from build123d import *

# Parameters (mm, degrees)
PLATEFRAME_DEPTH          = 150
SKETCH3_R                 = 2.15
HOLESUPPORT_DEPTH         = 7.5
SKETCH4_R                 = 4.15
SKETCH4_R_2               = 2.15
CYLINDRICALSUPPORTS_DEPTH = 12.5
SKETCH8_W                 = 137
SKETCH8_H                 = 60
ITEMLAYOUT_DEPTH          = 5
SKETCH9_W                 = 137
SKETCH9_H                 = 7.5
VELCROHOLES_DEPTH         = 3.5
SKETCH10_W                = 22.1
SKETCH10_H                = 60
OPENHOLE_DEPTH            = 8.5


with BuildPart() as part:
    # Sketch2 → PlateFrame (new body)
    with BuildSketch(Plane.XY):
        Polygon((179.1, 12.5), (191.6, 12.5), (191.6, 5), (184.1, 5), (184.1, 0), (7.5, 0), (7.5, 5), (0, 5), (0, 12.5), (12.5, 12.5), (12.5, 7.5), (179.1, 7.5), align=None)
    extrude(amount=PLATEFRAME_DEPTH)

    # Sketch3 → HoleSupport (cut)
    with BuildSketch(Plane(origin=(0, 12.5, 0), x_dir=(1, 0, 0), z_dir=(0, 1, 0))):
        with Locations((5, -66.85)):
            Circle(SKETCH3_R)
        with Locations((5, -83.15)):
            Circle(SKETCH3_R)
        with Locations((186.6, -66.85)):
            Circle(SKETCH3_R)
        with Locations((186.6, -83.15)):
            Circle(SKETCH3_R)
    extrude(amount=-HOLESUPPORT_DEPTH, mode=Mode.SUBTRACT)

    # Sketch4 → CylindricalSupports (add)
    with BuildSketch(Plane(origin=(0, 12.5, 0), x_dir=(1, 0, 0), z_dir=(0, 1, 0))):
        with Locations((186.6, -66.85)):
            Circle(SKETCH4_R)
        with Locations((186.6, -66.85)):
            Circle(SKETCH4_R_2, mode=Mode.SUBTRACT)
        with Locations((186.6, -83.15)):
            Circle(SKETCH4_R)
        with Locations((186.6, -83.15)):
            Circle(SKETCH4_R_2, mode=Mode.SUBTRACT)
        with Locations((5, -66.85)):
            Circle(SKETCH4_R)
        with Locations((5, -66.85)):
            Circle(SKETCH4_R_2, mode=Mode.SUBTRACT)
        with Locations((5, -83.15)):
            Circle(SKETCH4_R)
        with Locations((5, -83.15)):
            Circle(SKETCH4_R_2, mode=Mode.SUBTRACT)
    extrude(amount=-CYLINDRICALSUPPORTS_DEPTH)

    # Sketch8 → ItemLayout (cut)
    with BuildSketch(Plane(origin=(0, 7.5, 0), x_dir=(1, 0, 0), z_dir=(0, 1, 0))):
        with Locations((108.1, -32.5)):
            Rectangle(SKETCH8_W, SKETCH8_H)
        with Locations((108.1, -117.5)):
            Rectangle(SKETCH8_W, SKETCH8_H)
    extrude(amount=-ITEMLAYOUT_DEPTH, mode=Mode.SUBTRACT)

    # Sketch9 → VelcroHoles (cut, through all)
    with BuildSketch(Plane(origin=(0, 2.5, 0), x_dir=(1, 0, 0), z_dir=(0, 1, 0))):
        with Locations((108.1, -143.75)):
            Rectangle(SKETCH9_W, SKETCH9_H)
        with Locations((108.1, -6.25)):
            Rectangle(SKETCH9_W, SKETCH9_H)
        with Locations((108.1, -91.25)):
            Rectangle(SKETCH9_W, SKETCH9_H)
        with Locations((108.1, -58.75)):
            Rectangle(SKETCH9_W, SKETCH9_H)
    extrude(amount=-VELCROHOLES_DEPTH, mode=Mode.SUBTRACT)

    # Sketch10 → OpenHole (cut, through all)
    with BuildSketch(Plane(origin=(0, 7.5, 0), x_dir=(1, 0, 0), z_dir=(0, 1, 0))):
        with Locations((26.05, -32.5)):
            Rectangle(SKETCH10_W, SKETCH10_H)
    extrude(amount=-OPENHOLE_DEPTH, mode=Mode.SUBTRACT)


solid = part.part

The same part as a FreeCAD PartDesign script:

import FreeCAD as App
import Part
import Sketcher
Q = App.Units.Quantity


def add_polygon(sketch, points):
    """Adds a closed chain of lines whose ends are joined by coincident constraints."""
    first, n = sketch.GeometryCount, len(points)
    for a, b in zip(points, points[1:] + points[:1]):
        sketch.addGeometry(Part.LineSegment(App.Vector(*a, 0), App.Vector(*b, 0)), False)
    for i in range(n):
        sketch.addConstraint(Sketcher.Constraint("Coincident", first + i, 2, first + (i + 1) % n, 1))

doc = App.newDocument("Part")
body = doc.addObject("PartDesign::Body", "Body")

sketch1 = body.newObject("Sketcher::SketchObject", "Sketch")
sketch1.AttachmentSupport = (doc.getObject("XY_Plane"), [""])
sketch1.MapMode = "FlatFace"
add_polygon(sketch1, [(191.6, 12.5), (179.1, 12.5), (179.1, 7.5), (12.5, 7.5), (12.5, 12.5), (0, 12.5), (0, 5), (7.5, 5), (7.5, 0), (184.1, 0), (184.1, 5), (191.6, 5)])
sketch1.addConstraint([
    Sketcher.Constraint("Horizontal", 0),
    Sketcher.Constraint("Vertical", 1),
    Sketcher.Constraint("Horizontal", 2),
    Sketcher.Constraint("Vertical", 3),
    Sketcher.Constraint("Horizontal", 4),
    Sketcher.Constraint("Vertical", 5),
    Sketcher.Constraint("Horizontal", 6),
    Sketcher.Constraint("Vertical", 7),
    Sketcher.Constraint("Horizontal", 8),
    Sketcher.Constraint("Vertical", 9),
    Sketcher.Constraint("Horizontal", 10),
    Sketcher.Constraint("Vertical", 11),
    Sketcher.Constraint("PointOnObject", 4, 2, -2),
    Sketcher.Constraint("PointOnObject", 7, 2, -1),
    Sketcher.Constraint("Horizontal", 0, 2, 3, 2),
    Sketcher.Constraint("Horizontal", 6, 2, 9, 2),
    Sketcher.Constraint("Equal", 0, 4),
    Sketcher.Constraint("Equal", 6, 10),
    Sketcher.Constraint("Equal", 10, 5),
    Sketcher.Constraint("Equal", 3, 7),
    Sketcher.Constraint("DistanceY", 1, 2, 1, 1, Q("5 mm")),
    Sketcher.Constraint("DistanceX", 0, 2, 0, 1, Q("12.5 mm")),
    Sketcher.Constraint("DistanceX", 2, 2, 2, 1, Q("166.6 mm")),
    Sketcher.Constraint("DistanceX", 6, 1, 6, 2, Q("7.5 mm")),
])
pad1 = body.newObject("PartDesign::Pad", "Pad")
pad1.Profile = sketch1
pad1.Length = 150

sketch2 = body.newObject("Sketcher::SketchObject", "Sketch001")
sketch2.AttachmentSupport = (doc.getObject("XZ_Plane"), [""])
sketch2.MapMode = "FlatFace"
sketch2.AttachmentOffset = App.Placement(App.Vector(0, 0, -12.5), App.Rotation())
sketch2.addGeometry([
    Part.Circle(App.Vector(5, 66.85, 0), App.Vector(0, 0, 1), 2.15),
    Part.Circle(App.Vector(5, 83.15, 0), App.Vector(0, 0, 1), 2.15),
    Part.Circle(App.Vector(186.6, 66.85, 0), App.Vector(0, 0, 1), 2.15),
    Part.Circle(App.Vector(186.6, 83.15, 0), App.Vector(0, 0, 1), 2.15),
], False)
sketch2.addConstraint([
    Sketcher.Constraint("Equal", 0, 1),
    Sketcher.Constraint("Equal", 1, 2),
    Sketcher.Constraint("Equal", 2, 3),
    Sketcher.Constraint("Horizontal", 0, 3, 2, 3),
    Sketcher.Constraint("Horizontal", 1, 3, 3, 3),
    Sketcher.Constraint("Vertical", 0, 3, 1, 3),
    Sketcher.Constraint("Vertical", 2, 3, 3, 3),
    Sketcher.Constraint("Diameter", 0, Q("4.3 mm")),
    Sketcher.Constraint("DistanceX", -1, 1, 0, 3, Q("5 mm")),
    Sketcher.Constraint("DistanceX", -1, 1, 2, 3, Q("186.6 mm")),
    Sketcher.Constraint("DistanceY", 0, 3, 1, 3, Q("16.3 mm")),
    Sketcher.Constraint("DistanceY", -1, 1, 0, 3, Q("66.85 mm")),
])
pocket1 = body.newObject("PartDesign::Pocket", "Pocket")
pocket1.Profile = sketch2
pocket1.Length = 7.5
pocket1.Reversed = True

sketch3 = body.newObject("Sketcher::SketchObject", "Sketch002")
sketch3.AttachmentSupport = (doc.getObject("XZ_Plane"), [""])
sketch3.MapMode = "FlatFace"
sketch3.AttachmentOffset = App.Placement(App.Vector(0, 0, -12.5), App.Rotation())
sketch3.addGeometry([
    Part.Circle(App.Vector(186.6, 66.85, 0), App.Vector(0, 0, 1), 4.15),
    Part.Circle(App.Vector(186.6, 66.85, 0), App.Vector(0, 0, 1), 2.15),
    Part.Circle(App.Vector(186.6, 83.15, 0), App.Vector(0, 0, 1), 4.15),
    Part.Circle(App.Vector(186.6, 83.15, 0), App.Vector(0, 0, 1), 2.15),
    Part.Circle(App.Vector(5, 66.85, 0), App.Vector(0, 0, 1), 4.15),
    Part.Circle(App.Vector(5, 66.85, 0), App.Vector(0, 0, 1), 2.15),
    Part.Circle(App.Vector(5, 83.15, 0), App.Vector(0, 0, 1), 4.15),
    Part.Circle(App.Vector(5, 83.15, 0), App.Vector(0, 0, 1), 2.15),
], False)
sketch3.addConstraint([
    Sketcher.Constraint("Coincident", 1, 3, 0, 3),
    Sketcher.Constraint("Coincident", 3, 3, 2, 3),
    Sketcher.Constraint("Coincident", 5, 3, 4, 3),
    Sketcher.Constraint("Coincident", 7, 3, 6, 3),
    Sketcher.Constraint("Equal", 0, 2),
    Sketcher.Constraint("Equal", 1, 3),
    Sketcher.Constraint("Equal", 2, 4),
    Sketcher.Constraint("Equal", 3, 5),
    Sketcher.Constraint("Equal", 4, 6),
    Sketcher.Constraint("Equal", 5, 7),
    Sketcher.Constraint("Horizontal", 1, 3, 4, 3),
    Sketcher.Constraint("Horizontal", 3, 3, 6, 3),
    Sketcher.Constraint("Vertical", 1, 3, 2, 3),
    Sketcher.Constraint("Vertical", 5, 3, 6, 3),
    Sketcher.Constraint("Diameter", 0, Q("8.3 mm")),
    Sketcher.Constraint("Diameter", 1, Q("4.3 mm")),
    Sketcher.Constraint("DistanceX", -1, 1, 4, 3, Q("5 mm")),
    Sketcher.Constraint("DistanceX", -1, 1, 0, 3, Q("186.6 mm")),
    Sketcher.Constraint("DistanceY", 0, 3, 2, 3, Q("16.3 mm")),
    Sketcher.Constraint("DistanceY", -1, 1, 0, 3, Q("66.85 mm")),
])
pad2 = body.newObject("PartDesign::Pad", "Pad001")
pad2.Profile = sketch3
pad2.Length = 12.5

sketch4 = body.newObject("Sketcher::SketchObject", "Sketch003")
sketch4.AttachmentSupport = (doc.getObject("XZ_Plane"), [""])
sketch4.MapMode = "FlatFace"
sketch4.AttachmentOffset = App.Placement(App.Vector(0, 0, -7.5), App.Rotation())
add_polygon(sketch4, [(39.6, 2.5), (39.6, 62.5), (176.6, 62.5), (176.6, 2.5)])
add_polygon(sketch4, [(39.6, 87.5), (39.6, 147.5), (176.6, 147.5), (176.6, 87.5)])
sketch4.addConstraint([
    Sketcher.Constraint("Vertical", 0),
    Sketcher.Constraint("Horizontal", 1),
    Sketcher.Constraint("Vertical", 2),
    Sketcher.Constraint("Horizontal", 3),
    Sketcher.Constraint("Vertical", 4),
    Sketcher.Constraint("Horizontal", 5),
    Sketcher.Constraint("Vertical", 6),
    Sketcher.Constraint("Horizontal", 7),
    Sketcher.Constraint("Vertical", 3, 2, 4, 2),
    Sketcher.Constraint("Vertical", 2, 2, 5, 2),
    Sketcher.Constraint("Equal", 2, 4),
    Sketcher.Constraint("DistanceX", 1, 1, 1, 2, Q("137 mm")),
    Sketcher.Constraint("DistanceY", 0, 1, 0, 2, Q("60 mm")),
    Sketcher.Constraint("DistanceY", 0, 2, 4, 2, Q("85 mm")),
    Sketcher.Constraint("DistanceX", -1, 1, 0, 2, Q("39.6 mm")),
    Sketcher.Constraint("DistanceY", -1, 1, 0, 2, Q("62.5 mm")),
])
pocket2 = body.newObject("PartDesign::Pocket", "Pocket001")
pocket2.Profile = sketch4
pocket2.Length = 5
pocket2.Reversed = True

sketch5 = body.newObject("Sketcher::SketchObject", "Sketch004")
sketch5.AttachmentSupport = (doc.getObject("XZ_Plane"), [""])
sketch5.MapMode = "FlatFace"
sketch5.AttachmentOffset = App.Placement(App.Vector(0, 0, -2.5), App.Rotation())
add_polygon(sketch5, [(39.6, 140), (39.6, 147.5), (176.6, 147.5), (176.6, 140)])
add_polygon(sketch5, [(39.6, 2.5), (39.6, 10), (176.6, 10), (176.6, 2.5)])
add_polygon(sketch5, [(39.6, 87.5), (39.6, 95), (176.6, 95), (176.6, 87.5)])
add_polygon(sketch5, [(39.6, 55), (39.6, 62.5), (176.6, 62.5), (176.6, 55)])
sketch5.addConstraint([
    Sketcher.Constraint("Vertical", 0),
    Sketcher.Constraint("Horizontal", 1),
    Sketcher.Constraint("Vertical", 2),
    Sketcher.Constraint("Horizontal", 3),
    Sketcher.Constraint("Vertical", 4),
    Sketcher.Constraint("Horizontal", 5),
    Sketcher.Constraint("Vertical", 6),
    Sketcher.Constraint("Horizontal", 7),
    Sketcher.Constraint("Vertical", 8),
    Sketcher.Constraint("Horizontal", 9),
    Sketcher.Constraint("Vertical", 10),
    Sketcher.Constraint("Horizontal", 11),
    Sketcher.Constraint("Vertical", 12),
    Sketcher.Constraint("Horizontal", 13),
    Sketcher.Constraint("Vertical", 14),
    Sketcher.Constraint("Horizontal", 15),
    Sketcher.Constraint("Vertical", 3, 2, 4, 2),
    Sketcher.Constraint("Vertical", 2, 2, 5, 2),
    Sketcher.Constraint("Vertical", 7, 2, 8, 2),
    Sketcher.Constraint("Vertical", 6, 2, 9, 2),
    Sketcher.Constraint("Vertical", 11, 2, 12, 2),
    Sketcher.Constraint("Vertical", 10, 2, 13, 2),
    Sketcher.Constraint("Equal", 2, 4),
    Sketcher.Constraint("Equal", 6, 8),
    Sketcher.Constraint("Equal", 10, 12),
    Sketcher.Constraint("DistanceX", 1, 1, 1, 2, Q("137 mm")),
    Sketcher.Constraint("DistanceY", 0, 1, 0, 2, Q("7.5 mm")),
    Sketcher.Constraint("DistanceY", -1, 1, 2, 2, Q("140 mm")),
    Sketcher.Constraint("DistanceY", -1, 1, 4, 2, Q("10 mm")),
    Sketcher.Constraint("DistanceY", -1, 1, 8, 2, Q("95 mm")),
    Sketcher.Constraint("DistanceY", -1, 1, 14, 2, Q("55 mm")),
    Sketcher.Constraint("DistanceX", -1, 1, 0, 2, Q("39.6 mm")),
])
pocket3 = body.newObject("PartDesign::Pocket", "Pocket002")
pocket3.Profile = sketch5
pocket3.Type = "ThroughAll"
pocket3.Reversed = True

sketch6 = body.newObject("Sketcher::SketchObject", "Sketch005")
sketch6.AttachmentSupport = (doc.getObject("XZ_Plane"), [""])
sketch6.MapMode = "FlatFace"
sketch6.AttachmentOffset = App.Placement(App.Vector(0, 0, -7.5), App.Rotation())
add_polygon(sketch6, [(15, 2.5), (15, 62.5), (37.1, 62.5), (37.1, 2.5)])
sketch6.addConstraint([
    Sketcher.Constraint("Vertical", 0),
    Sketcher.Constraint("Horizontal", 1),
    Sketcher.Constraint("Vertical", 2),
    Sketcher.Constraint("Horizontal", 3),
    Sketcher.Constraint("DistanceY", 0, 1, 0, 2, Q("60 mm")),
    Sketcher.Constraint("DistanceX", 1, 1, 1, 2, Q("22.1 mm")),
    Sketcher.Constraint("DistanceX", -1, 1, 0, 2, Q("15 mm")),
    Sketcher.Constraint("DistanceY", -1, 1, 0, 2, Q("62.5 mm")),
])
pocket4 = body.newObject("PartDesign::Pocket", "Pocket003")
pocket4.Profile = sketch6
pocket4.Type = "ThroughAll"
pocket4.Reversed = True

doc.recompute()
